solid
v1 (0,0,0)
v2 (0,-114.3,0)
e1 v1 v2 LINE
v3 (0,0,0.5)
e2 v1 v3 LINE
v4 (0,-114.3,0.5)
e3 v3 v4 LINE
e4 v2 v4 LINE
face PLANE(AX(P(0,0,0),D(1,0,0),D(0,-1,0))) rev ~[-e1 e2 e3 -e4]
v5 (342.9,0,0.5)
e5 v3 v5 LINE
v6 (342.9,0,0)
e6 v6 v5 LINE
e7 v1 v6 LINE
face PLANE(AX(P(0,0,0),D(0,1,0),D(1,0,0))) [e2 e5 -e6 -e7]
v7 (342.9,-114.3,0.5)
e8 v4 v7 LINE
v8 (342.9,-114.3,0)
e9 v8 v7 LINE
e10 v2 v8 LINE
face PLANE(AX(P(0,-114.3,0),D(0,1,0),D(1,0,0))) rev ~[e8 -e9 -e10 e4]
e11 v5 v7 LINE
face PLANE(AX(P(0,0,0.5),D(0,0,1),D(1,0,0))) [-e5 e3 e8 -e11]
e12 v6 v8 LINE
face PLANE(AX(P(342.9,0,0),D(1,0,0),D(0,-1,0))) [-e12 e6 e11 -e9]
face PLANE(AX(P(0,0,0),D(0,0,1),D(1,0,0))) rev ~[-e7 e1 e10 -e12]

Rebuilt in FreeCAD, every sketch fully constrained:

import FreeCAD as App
import Part
import Sketcher

V = App.Vector
Q = App.Units.Quantity


def add_polygon(sketch, points):
    """Adds a closed chain of lines whose ends are joined by coincident constraints."""
    first, n = sketch.GeometryCount, len(points)
    for a, b in zip(points, points[1:] + points[:1]):
        sketch.addGeometry(Part.LineSegment(App.Vector(*a, 0), App.Vector(*b, 0)), False)
    for i in range(n):
        sketch.addConstraint(Sketcher.Constraint("Coincident", first + i, 2, first + (i + 1) % n, 1))

doc = App.newDocument("Part")
body = doc.addObject("PartDesign::Body", "Body")

# Sketch on XY plane
sketch1 = body.newObject("Sketcher::SketchObject", "Sketch")
sketch1.AttachmentSupport = (doc.getObject("XY_Plane"), [""])
sketch1.MapMode = "FlatFace"
add_polygon(sketch1, [(343, 0), (0, 0), (0, -114), (343, -114)])  # lines 0-3
sketch1.addConstraint([
    Sketcher.Constraint("Horizontal", 0),
    Sketcher.Constraint("Vertical", 1),
    Sketcher.Constraint("Horizontal", 2),
    Sketcher.Constraint("Vertical", 3),
    Sketcher.Constraint("Coincident", 0, 2, -1, 1),
    Sketcher.Constraint("DistanceX", 0, 2, 0, 1, Q("13.5 in")),
    Sketcher.Constraint("DistanceY", 1, 2, 1, 1, Q("4.5 in")),
])
pad1 = body.newObject("PartDesign::Pad", "Pad")
pad1.Profile = sketch1
pad1.Length = 0.5

doc.recompute()
